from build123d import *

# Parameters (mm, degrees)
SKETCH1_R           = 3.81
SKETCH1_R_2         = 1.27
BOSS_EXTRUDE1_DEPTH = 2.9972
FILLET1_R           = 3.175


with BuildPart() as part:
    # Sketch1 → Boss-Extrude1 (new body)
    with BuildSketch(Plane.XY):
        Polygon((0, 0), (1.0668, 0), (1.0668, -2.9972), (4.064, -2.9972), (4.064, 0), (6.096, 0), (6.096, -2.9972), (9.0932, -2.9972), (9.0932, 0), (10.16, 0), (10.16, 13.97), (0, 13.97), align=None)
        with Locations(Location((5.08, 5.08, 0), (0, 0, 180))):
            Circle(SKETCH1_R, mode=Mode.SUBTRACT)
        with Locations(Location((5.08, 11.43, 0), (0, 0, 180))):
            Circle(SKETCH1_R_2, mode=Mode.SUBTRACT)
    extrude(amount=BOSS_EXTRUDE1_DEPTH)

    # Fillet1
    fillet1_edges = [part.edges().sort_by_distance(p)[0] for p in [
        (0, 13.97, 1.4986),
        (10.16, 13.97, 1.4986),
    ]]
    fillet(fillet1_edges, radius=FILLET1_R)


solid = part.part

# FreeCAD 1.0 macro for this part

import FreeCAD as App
import Part
import Sketcher
from FreeCAD import Vector
Q = App.Units.Quantity


def edges_at(feature, points):
    """Names of the edges that pass closest to the given points."""
    edges = feature.Shape.Edges
    near = lambda p: min(range(len(edges)), key=lambda i: edges[i].distToShape(Part.Vertex(*p))[0])
    return sorted({f"Edge{near(p) + 1}" for p in points})


def add_polygon(sketch, points):
    """Adds a closed chain of lines whose ends are joined by coincident constraints."""
    first, n = sketch.GeometryCount, len(points)
    for a, b in zip(points, points[1:] + points[:1]):
        sketch.addGeometry(Part.LineSegment(App.Vector(*a, 0), App.Vector(*b, 0)), False)
    for i in range(n):
        sketch.addConstraint(Sketcher.Constraint("Coincident", first + i, 2, first + (i + 1) % n, 1))

doc = App.newDocument("Part")
body = doc.addObject("PartDesign::Body", "Body")

sketch1 = body.newObject("Sketcher::SketchObject", "Sketch")
sketch1.AttachmentSupport = (doc.getObject("XY_Plane"), [""])
sketch1.MapMode = "FlatFace"
add_polygon(sketch1, [(0, 0), (1.1, 0), (1.1, -3), (4.1, -3), (4.1, 0), (6.1, 0), (6.1, -3), (9.1, -3), (9.1, 0), (10.2, 0), (10.2, 14), (0, 14)])
sketch1.addGeometry(Part.Circle(Vector(5.1, 5.1, 0), Vector(0, 0, 1), 3.8), False)
sketch1.addGeometry(Part.Circle(Vector(5.1, 11.4, 0), Vector(0, 0, 1), 1.3), False)
sketch1.addConstraint([
    Sketcher.Constraint("Horizontal", 0),
    Sketcher.Constraint("Vertical", 1),
    Sketcher.Constraint("Horizontal", 2),
    Sketcher.Constraint("Vertical", 3),
    Sketcher.Constraint("Horizontal", 4),
    Sketcher.Constraint("Vertical", 5),
    Sketcher.Constraint("Horizontal", 6),
    Sketcher.Constraint("Vertical", 7),
    Sketcher.Constraint("Horizontal", 8),
    Sketcher.Constraint("Vertical", 9),
    Sketcher.Constraint("Horizontal", 10),
    Sketcher.Constraint("Vertical", 11),
    Sketcher.Constraint("Coincident", 11, 2, -1, 1),
    Sketcher.Constraint("PointOnObject", 3, 2, -1),
    Sketcher.Constraint("PointOnObject", 7, 2, -1),
    Sketcher.Constraint("Horizontal", 2, 2, 5, 2),
    Sketcher.Constraint("Vertical", 12, 3, 13, 3),
    Sketcher.Constraint("Equal", 2, 6),
    Sketcher.Constraint("Equal", 0, 8),
    Sketcher.Constraint("Equal", 6, 1),
    Sketcher.Constraint("Diameter", 12, Q("0.3 in")),
    Sketcher.Constraint("Diameter", 13, Q("0.1 in")),
    Sketcher.Constraint("DistanceX", 10, 2, 10, 1, Q("0.4 in")),
    Sketcher.Constraint("DistanceX", 4, 1, 4, 2, Q("0.08 in")),
    Sketcher.Constraint("DistanceY", 9, 1, 9, 2, Q("0.55 in")),
    Sketcher.Constraint("DistanceX", -1, 1, 12, 3, Q("0.2 in")),
    Sketcher.Constraint("DistanceY", -1, 1, 12, 3, Q("0.2 in")),
    Sketcher.Constraint("DistanceY", 13, 3, 9, 2, Q("0.1 in")),
    Sketcher.Constraint("DistanceX", 0, 1, 0, 2, Q("0.042 in")),
])
pad1 = body.newObject("PartDesign::Pad", "Pad")
pad1.Profile = sketch1
pad1.Length = Q("0.118 in")
doc.recompute()

fillet = body.newObject("PartDesign::Fillet", "Fillet")
fillet.Base = (pad1, edges_at(pad1, [(0, 13.97, 1.499), (10.16, 13.97, 1.499)]))
fillet.Radius = Q("0.125 in")

doc.recompute()
